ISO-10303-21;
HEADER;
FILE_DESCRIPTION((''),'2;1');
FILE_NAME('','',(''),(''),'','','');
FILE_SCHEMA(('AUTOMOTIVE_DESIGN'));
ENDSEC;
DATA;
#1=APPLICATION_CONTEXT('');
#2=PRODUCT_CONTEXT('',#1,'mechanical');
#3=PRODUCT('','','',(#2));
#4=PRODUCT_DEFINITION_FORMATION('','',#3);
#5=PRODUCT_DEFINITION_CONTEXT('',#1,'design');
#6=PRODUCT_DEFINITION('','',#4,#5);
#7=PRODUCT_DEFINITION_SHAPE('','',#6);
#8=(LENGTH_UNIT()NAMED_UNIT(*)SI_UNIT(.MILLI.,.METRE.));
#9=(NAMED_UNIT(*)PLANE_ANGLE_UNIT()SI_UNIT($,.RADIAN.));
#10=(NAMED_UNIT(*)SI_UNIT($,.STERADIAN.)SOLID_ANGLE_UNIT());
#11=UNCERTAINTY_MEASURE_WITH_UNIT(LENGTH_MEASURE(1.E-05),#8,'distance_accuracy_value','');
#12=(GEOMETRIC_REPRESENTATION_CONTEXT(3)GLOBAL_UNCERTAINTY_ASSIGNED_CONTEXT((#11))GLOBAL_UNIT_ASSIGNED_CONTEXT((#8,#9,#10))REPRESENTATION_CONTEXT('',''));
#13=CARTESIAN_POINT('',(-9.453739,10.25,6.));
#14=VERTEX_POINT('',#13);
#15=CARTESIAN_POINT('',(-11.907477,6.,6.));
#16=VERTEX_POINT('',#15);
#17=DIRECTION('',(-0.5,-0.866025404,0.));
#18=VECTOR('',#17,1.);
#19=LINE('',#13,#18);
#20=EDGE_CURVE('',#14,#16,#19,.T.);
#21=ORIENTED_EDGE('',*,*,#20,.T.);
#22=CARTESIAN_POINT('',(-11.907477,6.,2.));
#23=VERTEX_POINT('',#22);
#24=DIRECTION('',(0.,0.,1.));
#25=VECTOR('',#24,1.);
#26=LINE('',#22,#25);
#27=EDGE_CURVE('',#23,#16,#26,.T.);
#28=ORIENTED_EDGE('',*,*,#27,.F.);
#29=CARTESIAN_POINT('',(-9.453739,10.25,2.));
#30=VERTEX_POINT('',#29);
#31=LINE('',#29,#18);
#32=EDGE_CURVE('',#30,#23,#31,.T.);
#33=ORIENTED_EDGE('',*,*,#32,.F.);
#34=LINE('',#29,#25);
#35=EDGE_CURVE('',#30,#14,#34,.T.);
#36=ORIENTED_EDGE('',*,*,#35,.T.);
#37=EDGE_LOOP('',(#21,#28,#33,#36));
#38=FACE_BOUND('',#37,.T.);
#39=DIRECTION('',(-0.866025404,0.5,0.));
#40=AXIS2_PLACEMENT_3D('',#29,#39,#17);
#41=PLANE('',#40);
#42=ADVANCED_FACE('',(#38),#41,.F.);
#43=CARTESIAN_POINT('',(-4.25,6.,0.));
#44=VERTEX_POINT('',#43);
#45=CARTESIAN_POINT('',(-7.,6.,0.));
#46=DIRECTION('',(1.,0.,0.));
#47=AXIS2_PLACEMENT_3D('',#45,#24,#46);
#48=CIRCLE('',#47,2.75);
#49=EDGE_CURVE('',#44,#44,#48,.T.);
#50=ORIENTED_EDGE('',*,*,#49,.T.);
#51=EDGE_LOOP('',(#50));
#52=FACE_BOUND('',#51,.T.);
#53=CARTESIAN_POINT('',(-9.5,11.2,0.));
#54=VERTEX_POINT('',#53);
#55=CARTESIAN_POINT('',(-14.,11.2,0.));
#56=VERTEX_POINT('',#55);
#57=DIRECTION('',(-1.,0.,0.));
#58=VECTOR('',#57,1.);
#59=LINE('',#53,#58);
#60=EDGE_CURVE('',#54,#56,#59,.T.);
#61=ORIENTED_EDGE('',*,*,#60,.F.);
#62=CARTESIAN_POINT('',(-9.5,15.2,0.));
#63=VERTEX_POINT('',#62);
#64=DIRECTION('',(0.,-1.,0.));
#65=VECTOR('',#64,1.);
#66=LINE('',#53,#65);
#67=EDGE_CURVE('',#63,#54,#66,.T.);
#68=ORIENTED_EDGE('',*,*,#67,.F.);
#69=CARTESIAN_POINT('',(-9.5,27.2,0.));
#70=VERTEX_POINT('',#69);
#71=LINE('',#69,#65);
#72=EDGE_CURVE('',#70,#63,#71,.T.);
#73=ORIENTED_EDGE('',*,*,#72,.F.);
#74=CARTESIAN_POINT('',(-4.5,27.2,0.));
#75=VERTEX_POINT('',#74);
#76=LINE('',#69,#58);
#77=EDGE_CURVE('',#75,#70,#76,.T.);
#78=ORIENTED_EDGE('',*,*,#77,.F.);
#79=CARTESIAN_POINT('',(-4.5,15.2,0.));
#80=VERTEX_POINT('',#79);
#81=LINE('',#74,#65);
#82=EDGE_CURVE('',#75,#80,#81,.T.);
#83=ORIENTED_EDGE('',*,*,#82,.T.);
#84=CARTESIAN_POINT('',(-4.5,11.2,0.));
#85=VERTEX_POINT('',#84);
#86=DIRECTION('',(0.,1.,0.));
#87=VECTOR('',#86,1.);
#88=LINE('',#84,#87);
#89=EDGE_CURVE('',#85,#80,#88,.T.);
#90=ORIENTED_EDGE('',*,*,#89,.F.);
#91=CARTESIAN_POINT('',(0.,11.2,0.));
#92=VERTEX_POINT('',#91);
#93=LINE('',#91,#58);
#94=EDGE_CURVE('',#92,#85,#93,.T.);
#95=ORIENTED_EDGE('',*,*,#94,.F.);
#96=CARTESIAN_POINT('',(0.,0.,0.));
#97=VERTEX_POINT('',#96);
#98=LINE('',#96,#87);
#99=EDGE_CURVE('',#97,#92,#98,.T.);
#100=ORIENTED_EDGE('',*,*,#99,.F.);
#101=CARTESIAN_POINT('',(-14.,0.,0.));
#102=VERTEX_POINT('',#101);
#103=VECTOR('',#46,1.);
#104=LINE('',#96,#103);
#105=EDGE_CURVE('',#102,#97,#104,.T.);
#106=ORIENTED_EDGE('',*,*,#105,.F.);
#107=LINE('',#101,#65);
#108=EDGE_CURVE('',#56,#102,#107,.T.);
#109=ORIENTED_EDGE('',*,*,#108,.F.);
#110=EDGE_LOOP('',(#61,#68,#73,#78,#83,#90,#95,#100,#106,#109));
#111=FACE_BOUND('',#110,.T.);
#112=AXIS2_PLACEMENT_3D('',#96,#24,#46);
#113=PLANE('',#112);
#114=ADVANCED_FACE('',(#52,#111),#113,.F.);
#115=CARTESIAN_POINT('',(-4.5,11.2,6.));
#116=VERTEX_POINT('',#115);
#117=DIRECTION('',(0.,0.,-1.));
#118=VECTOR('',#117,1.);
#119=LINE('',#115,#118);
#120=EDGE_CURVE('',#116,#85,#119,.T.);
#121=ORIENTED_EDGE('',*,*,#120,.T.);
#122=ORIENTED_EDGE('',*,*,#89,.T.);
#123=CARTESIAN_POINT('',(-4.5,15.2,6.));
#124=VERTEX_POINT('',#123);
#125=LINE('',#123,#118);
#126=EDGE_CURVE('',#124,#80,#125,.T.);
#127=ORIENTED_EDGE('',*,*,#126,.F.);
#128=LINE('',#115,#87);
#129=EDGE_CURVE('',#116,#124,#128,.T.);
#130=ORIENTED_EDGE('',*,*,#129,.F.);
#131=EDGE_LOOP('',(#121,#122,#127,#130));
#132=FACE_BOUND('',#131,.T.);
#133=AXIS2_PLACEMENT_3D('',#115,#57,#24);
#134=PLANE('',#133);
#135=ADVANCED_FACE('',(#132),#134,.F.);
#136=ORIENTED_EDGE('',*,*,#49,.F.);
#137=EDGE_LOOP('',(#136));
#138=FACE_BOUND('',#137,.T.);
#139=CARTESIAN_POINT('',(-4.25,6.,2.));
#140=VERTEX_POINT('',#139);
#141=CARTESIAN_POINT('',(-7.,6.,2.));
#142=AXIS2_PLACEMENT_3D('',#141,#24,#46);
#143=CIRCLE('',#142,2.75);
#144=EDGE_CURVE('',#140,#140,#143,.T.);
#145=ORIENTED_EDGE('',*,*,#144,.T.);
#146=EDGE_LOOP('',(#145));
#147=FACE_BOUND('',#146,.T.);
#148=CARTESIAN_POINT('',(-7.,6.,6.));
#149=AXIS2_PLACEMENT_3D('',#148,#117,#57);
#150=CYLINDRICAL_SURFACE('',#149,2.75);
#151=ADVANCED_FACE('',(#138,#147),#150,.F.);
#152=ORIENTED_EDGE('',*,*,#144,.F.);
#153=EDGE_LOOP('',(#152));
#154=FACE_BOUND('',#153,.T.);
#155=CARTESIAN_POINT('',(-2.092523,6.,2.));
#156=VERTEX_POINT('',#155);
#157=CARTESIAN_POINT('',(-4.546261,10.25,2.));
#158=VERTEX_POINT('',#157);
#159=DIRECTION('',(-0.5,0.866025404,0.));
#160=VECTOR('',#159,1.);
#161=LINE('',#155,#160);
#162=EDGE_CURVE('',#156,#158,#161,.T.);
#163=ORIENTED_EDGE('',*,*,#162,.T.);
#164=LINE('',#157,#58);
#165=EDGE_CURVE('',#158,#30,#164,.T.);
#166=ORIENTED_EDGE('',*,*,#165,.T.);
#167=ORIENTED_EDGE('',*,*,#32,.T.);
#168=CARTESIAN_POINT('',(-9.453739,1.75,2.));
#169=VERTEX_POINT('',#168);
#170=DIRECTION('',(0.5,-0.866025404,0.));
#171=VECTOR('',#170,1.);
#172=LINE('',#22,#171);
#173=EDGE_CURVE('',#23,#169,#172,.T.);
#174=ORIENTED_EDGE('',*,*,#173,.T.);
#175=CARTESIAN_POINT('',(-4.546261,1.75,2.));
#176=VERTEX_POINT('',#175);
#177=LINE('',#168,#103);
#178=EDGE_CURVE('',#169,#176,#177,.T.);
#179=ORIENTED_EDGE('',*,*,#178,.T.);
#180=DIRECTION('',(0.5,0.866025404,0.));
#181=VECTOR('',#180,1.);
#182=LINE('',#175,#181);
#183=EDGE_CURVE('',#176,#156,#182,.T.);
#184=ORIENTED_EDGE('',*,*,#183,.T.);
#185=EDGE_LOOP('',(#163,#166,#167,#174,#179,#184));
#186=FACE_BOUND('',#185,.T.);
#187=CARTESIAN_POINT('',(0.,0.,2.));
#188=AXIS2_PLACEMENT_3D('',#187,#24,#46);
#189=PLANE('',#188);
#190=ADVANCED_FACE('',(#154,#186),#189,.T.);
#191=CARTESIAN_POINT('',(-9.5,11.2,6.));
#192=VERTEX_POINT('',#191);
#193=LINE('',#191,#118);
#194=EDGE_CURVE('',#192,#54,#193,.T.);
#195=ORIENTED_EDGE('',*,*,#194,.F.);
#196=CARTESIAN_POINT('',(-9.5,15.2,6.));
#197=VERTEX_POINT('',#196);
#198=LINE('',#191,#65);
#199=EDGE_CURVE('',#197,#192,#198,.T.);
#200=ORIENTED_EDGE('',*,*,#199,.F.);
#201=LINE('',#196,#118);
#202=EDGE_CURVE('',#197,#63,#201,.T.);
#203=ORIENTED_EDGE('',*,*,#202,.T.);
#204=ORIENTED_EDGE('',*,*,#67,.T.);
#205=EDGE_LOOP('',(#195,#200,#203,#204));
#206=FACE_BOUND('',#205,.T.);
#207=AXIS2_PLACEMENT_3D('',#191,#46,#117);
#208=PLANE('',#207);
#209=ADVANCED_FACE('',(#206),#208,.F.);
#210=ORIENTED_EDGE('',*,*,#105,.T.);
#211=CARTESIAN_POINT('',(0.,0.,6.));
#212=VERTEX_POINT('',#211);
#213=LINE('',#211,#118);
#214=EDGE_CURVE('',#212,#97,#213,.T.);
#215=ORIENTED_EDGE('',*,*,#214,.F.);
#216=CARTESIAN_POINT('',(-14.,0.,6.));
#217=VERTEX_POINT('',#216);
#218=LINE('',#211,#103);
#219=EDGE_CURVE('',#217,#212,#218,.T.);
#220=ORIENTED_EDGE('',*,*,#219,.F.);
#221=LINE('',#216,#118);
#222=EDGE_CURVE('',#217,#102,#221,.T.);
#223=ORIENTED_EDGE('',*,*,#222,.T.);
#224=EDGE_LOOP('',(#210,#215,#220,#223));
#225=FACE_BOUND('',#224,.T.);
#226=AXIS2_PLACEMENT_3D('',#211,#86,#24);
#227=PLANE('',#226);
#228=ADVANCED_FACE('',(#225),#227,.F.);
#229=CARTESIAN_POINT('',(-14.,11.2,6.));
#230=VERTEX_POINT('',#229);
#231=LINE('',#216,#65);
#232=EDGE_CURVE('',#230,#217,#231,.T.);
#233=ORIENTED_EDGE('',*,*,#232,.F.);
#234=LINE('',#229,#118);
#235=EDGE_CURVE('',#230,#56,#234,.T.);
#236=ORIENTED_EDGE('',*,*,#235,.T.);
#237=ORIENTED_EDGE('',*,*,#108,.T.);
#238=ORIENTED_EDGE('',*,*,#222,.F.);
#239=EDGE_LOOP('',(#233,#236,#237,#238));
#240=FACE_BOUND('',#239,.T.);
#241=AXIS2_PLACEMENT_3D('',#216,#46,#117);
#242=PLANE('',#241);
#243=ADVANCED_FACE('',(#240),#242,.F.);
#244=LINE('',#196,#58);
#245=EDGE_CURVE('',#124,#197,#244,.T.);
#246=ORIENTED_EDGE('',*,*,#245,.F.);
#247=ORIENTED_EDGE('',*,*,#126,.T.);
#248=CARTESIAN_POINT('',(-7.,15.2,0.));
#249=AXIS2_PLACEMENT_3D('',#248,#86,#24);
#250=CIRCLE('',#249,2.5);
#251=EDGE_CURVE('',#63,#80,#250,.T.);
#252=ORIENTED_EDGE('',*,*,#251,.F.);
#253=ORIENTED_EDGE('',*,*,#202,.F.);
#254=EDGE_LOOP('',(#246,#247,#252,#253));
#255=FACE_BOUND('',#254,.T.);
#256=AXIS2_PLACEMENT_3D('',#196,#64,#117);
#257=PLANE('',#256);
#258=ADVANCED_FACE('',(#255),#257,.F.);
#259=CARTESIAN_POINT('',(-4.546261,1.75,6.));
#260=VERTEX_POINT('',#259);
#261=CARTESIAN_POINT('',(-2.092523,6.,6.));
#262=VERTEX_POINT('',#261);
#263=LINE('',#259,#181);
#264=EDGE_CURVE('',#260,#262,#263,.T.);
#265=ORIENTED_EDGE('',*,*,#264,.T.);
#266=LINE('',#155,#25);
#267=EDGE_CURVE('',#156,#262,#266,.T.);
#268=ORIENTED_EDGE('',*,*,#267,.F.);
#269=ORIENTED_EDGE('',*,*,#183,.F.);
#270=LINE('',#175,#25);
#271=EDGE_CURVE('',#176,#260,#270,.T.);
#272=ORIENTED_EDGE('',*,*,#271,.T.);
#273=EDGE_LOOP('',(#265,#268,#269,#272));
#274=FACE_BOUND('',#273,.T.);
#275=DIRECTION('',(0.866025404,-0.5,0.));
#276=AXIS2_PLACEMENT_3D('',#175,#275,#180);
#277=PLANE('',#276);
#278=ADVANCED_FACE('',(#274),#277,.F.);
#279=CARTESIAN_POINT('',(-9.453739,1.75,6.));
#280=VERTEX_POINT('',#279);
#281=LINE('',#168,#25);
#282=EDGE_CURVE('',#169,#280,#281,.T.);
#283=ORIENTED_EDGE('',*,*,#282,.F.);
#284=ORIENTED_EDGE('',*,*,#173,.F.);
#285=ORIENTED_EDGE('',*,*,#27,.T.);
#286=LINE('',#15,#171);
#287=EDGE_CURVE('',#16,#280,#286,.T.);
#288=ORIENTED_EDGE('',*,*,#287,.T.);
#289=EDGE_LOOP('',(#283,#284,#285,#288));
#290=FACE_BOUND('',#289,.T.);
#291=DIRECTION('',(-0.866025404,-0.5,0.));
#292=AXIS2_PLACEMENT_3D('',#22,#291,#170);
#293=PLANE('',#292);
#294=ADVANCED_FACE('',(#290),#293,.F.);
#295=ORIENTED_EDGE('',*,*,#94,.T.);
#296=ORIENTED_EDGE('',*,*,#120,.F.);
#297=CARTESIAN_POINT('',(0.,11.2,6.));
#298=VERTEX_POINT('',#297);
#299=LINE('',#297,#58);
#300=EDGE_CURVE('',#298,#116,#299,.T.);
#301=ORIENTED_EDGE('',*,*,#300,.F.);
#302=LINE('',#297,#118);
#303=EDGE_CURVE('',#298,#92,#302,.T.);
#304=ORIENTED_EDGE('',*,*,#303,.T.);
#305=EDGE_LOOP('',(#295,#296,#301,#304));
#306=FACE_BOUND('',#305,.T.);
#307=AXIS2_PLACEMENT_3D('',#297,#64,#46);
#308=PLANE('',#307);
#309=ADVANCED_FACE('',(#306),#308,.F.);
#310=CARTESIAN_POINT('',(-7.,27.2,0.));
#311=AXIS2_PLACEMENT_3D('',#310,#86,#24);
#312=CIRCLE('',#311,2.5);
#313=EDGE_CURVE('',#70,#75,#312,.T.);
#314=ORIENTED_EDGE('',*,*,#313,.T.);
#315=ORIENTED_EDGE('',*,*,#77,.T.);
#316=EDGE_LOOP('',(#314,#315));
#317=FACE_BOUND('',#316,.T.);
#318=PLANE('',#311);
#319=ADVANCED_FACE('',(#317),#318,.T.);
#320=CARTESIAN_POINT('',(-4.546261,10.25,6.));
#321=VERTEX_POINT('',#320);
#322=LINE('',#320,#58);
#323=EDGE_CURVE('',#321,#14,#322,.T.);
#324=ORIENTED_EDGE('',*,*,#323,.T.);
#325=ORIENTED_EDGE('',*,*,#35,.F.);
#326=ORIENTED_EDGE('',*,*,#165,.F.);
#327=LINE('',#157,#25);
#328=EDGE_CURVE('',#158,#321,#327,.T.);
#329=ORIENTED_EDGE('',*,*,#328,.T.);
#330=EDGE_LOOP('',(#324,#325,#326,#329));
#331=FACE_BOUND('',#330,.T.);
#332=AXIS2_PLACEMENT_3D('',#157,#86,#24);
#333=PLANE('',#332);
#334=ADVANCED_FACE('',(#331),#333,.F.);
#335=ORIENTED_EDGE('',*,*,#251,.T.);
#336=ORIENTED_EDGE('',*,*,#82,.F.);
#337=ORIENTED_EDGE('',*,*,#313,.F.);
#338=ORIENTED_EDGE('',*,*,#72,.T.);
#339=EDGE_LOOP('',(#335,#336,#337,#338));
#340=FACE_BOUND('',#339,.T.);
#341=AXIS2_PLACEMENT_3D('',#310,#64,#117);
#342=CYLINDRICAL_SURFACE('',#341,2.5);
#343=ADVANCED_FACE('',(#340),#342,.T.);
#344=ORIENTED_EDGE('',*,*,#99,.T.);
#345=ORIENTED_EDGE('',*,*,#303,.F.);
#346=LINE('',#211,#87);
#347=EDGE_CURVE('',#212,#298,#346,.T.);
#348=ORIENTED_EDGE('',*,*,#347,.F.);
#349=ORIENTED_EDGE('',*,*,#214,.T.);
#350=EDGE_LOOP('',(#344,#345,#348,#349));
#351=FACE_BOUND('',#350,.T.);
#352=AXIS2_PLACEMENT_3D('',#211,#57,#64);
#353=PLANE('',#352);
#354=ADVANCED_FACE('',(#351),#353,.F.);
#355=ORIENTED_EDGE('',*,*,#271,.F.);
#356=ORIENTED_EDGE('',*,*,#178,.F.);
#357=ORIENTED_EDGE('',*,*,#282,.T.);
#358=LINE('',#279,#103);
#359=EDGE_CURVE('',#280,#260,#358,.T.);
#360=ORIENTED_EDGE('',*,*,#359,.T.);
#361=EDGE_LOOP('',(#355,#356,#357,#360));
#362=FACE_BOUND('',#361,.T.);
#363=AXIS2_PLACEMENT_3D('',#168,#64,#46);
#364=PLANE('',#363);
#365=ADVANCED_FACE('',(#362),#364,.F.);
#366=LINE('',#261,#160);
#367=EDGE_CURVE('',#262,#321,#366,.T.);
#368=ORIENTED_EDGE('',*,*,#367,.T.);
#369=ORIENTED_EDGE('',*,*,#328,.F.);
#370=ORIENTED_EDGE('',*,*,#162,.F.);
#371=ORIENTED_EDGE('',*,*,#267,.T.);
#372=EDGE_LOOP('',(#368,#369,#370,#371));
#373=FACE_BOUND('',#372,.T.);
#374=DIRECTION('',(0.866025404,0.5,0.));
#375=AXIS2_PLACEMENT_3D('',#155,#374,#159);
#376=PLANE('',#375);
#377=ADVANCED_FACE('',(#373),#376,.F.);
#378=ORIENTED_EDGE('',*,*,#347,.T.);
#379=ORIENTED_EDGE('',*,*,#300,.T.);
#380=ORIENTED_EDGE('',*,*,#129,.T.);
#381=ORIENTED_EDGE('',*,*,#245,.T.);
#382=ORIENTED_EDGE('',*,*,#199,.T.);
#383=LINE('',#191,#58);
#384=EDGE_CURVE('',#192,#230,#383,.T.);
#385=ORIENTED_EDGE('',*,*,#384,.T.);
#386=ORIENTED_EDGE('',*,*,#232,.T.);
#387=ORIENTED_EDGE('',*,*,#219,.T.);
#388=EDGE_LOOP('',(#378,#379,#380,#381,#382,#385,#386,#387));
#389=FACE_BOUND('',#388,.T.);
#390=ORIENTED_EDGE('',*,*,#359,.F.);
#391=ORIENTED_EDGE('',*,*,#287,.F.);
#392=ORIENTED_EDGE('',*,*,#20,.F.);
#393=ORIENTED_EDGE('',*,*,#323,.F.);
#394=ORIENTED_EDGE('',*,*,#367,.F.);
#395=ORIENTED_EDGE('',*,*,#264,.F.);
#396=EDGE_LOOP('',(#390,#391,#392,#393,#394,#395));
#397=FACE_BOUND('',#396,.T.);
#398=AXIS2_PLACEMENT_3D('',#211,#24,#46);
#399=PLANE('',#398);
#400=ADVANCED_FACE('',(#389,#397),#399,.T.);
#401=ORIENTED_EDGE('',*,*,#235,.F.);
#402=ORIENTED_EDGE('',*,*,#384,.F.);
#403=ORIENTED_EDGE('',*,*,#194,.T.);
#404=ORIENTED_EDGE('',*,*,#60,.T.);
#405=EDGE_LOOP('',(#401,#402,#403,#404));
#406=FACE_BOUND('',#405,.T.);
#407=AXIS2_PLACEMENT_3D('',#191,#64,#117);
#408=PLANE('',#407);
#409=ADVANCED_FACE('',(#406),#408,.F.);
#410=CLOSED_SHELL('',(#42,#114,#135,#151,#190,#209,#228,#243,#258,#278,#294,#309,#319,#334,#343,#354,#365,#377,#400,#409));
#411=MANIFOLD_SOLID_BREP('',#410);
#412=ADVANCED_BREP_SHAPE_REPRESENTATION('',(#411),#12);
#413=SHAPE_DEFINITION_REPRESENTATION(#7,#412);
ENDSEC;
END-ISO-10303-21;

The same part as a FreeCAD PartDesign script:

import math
import FreeCAD as App
import Part
import Sketcher
Q = App.Units.Quantity

doc = App.newDocument("Part")
params = doc.addObject("Spreadsheet::Sheet", "Params")
for row, (alias, value) in enumerate([
    ("sketch1_diameter", "5.5 mm"),
    ("sketch1_width", "14 mm"),
    ("sketch1_width2", "5 mm"),
    ("sketch1_height", "4 mm"),
    ("sketch1_height2", "11.2 mm"),
    ("pad1_length", "6 mm"),
    ("sketch2_radius", "2.5 mm"),
    ("pad2_length", "12 mm"),
    ("pocket1_length", "4 mm"),
], start=1):
    params.set(f"A{row}", alias)
    params.set(f"B{row}", "=" + value)
    params.setAlias(f"B{row}", alias)

body = doc.addObject("PartDesign::Body", "Body")

sketch1 = doc.addObject("Sketcher::SketchObject", "Sketch")
body.addObject(sketch1)
sketch1.AttachmentSupport = (doc.XY_Plane, [""])
sketch1.MapMode = "FlatFace"
sketch1.addGeometry([
    Part.LineSegment(App.Vector(-9.5, 11.2, 0), App.Vector(-14, 11.2, 0)),
    Part.LineSegment(App.Vector(-14, 11.2, 0), App.Vector(-14, 0, 0)),
    Part.LineSegment(App.Vector(-14, 0, 0), App.Vector(0, 0, 0)),
    Part.LineSegment(App.Vector(0, 0, 0), App.Vector(0, 11.2, 0)),
    Part.LineSegment(App.Vector(0, 11.2, 0), App.Vector(-4.5, 11.2, 0)),
    Part.LineSegment(App.Vector(-4.5, 11.2, 0), App.Vector(-4.5, 15.2, 0)),
    Part.LineSegment(App.Vector(-4.5, 15.2, 0), App.Vector(-9.5, 15.2, 0)),
    Part.LineSegment(App.Vector(-9.5, 15.2, 0), App.Vector(-9.5, 11.2, 0)),
    Part.Circle(App.Vector(-7, 6, 0), App.Vector(0, 0, 1), 2.75),
], False)
sketch1.addConstraint([
    Sketcher.Constraint("Coincident", 0, 2, 1, 1),
    Sketcher.Constraint("Coincident", 1, 2, 2, 1),
    Sketcher.Constraint("Coincident", 2, 2, 3, 1),
    Sketcher.Constraint("Coincident", 3, 2, 4, 1),
    Sketcher.Constraint("Coincident", 4, 2, 5, 1),
    Sketcher.Constraint("Coincident", 5, 2, 6, 1),
    Sketcher.Constraint("Coincident", 6, 2, 7, 1),
    Sketcher.Constraint("Coincident", 7, 2, 0, 1),
    Sketcher.Constraint("Horizontal", 0),
    Sketcher.Constraint("Vertical", 1),
    Sketcher.Constraint("Horizontal", 2),
    Sketcher.Constraint("Vertical", 3),
    Sketcher.Constraint("Horizontal", 4),
    Sketcher.Constraint("Vertical", 5),
    Sketcher.Constraint("Horizontal", 6),
    Sketcher.Constraint("Vertical", 7),
    Sketcher.Constraint("Coincident", 2, 2, -1, 1),
    Sketcher.Constraint("Horizontal", 0, 2, 3, 2),
    Sketcher.Constraint("Equal", 0, 4),
    Sketcher.Constraint("Diameter", 8, Q("5.5 mm")),
    Sketcher.Constraint("DistanceX", 2, 1, 2, 2, Q("14 mm")),
    Sketcher.Constraint("DistanceX", 6, 2, 6, 1, Q("5 mm")),
    Sketcher.Constraint("DistanceY", 5, 1, 5, 2, Q("4 mm")),
    Sketcher.Constraint("DistanceY", 1, 2, 1, 1, Q("11.2 mm")),
    Sketcher.Constraint("DistanceX", 8, 3, -1, 1, Q("7 mm")),
    Sketcher.Constraint("DistanceY", -1, 1, 8, 3, Q("6 mm")),
])
sketch1.setExpression("Constraints[19]", "Params.sketch1_diameter")
sketch1.setExpression("Constraints[20]", "Params.sketch1_width")
sketch1.setExpression("Constraints[21]", "Params.sketch1_width2")
sketch1.setExpression("Constraints[22]", "Params.sketch1_height")
sketch1.setExpression("Constraints[23]", "Params.sketch1_height2")
pad1 = doc.addObject("PartDesign::Pad", "Pad")
body.addObject(pad1)
pad1.Profile = sketch1
pad1.setExpression("Length", "Params.pad1_length")

sketch2 = doc.addObject("Sketcher::SketchObject", "Sketch001")
body.addObject(sketch2)
sketch2.AttachmentSupport = (doc.XZ_Plane, [""])
sketch2.MapMode = "FlatFace"
sketch2.AttachmentOffset = App.Placement(App.Vector(0, 0, -15.2), App.Rotation())
sketch2.addGeometry([
    Part.LineSegment(App.Vector(-4.5, 0, 0), App.Vector(-9.5, 0, 0)),
    Part.ArcOfCircle(Part.Circle(App.Vector(-7, 0, 0), App.Vector(0, 0, 1), 2.5), math.radians(0), math.radians(180)),
], False)
sketch2.addConstraint([
    Sketcher.Constraint("Coincident", 0, 1, 1, 1),
    Sketcher.Constraint("Coincident", 1, 2, 0, 2),
    Sketcher.Constraint("Horizontal", 0),
    Sketcher.Constraint("PointOnObject", 1, 3, -1),
    Sketcher.Constraint("PointOnObject", 0, 1, -1),
    Sketcher.Constraint("Radius", 1, Q("2.5 mm")),
    Sketcher.Constraint("DistanceX", 1, 3, -1, 1, Q("7 mm")),
])
sketch2.setExpression("Constraints[5]", "Params.sketch2_radius")
pad2 = doc.addObject("PartDesign::Pad", "Pad001")
body.addObject(pad2)
pad2.Profile = sketch2
pad2.setExpression("Length", "Params.pad2_length")
pad2.Reversed = True

sketch3 = doc.addObject("Sketcher::SketchObject", "Sketch002")
body.addObject(sketch3)
sketch3.AttachmentSupport = (doc.XY_Plane, [""])
sketch3.MapMode = "FlatFace"
sketch3.AttachmentOffset = App.Placement(App.Vector(0, 0, 6), App.Rotation())
sketch3.addGeometry([
    Part.LineSegment(App.Vector(-2.092523, 6, 0), App.Vector(-4.546261, 10.25, 0)),
    Part.LineSegment(App.Vector(-4.546261, 10.25, 0), App.Vector(-9.453739, 10.25, 0)),
    Part.LineSegment(App.Vector(-9.453739, 10.25, 0), App.Vector(-11.907477, 6, 0)),
    Part.LineSegment(App.Vector(-11.907477, 6, 0), App.Vector(-9.453739, 1.75, 0)),
    Part.LineSegment(App.Vector(-9.453739, 1.75, 0), App.Vector(-4.546261, 1.75, 0)),
    Part.LineSegment(App.Vector(-4.546261, 1.75, 0), App.Vector(-2.092523, 6, 0)),
], False)
sketch3.addConstraint([
    Sketcher.Constraint("Coincident", 0, 2, 1, 1),
    Sketcher.Constraint("Coincident", 1, 2, 2, 1),
    Sketcher.Constraint("Coincident", 2, 2, 3, 1),
    Sketcher.Constraint("Coincident", 3, 2, 4, 1),
    Sketcher.Constraint("Coincident", 4, 2, 5, 1),
    Sketcher.Constraint("Coincident", 5, 2, 0, 1),
    Sketcher.Constraint("Horizontal", 1),
    Sketcher.Constraint("Horizontal", 4),
    Sketcher.Constraint("Parallel", 0, 3),
    Sketcher.Constraint("Parallel", 2, 5),
    Sketcher.Constraint("Horizontal", 2, 2, 5, 2),
    Sketcher.Constraint("Vertical", 1, 2, 3, 2),
    Sketcher.Constraint("Vertical", 0, 2, 4, 2),
    Sketcher.Constraint("Angle", 0, Q("120 deg")),
    Sketcher.Constraint("DistanceY", -1, 1, 2, 2, Q("6 mm")),
    Sketcher.Constraint("DistanceY", 3, 2, 1, 2, Q("8.5 mm")),
    Sketcher.Constraint("DistanceX", 1, 2, 1, 1, Q("4.907477 mm")),
    Sketcher.Constraint("DistanceX", 0, 2, -1, 1, Q("4.546261 mm")),
])
pocket1 = doc.addObject("PartDesign::Pocket", "Pocket")
body.addObject(pocket1)
pocket1.Profile = sketch3
pocket1.setExpression("Length", "Params.pocket1_length")

doc.recompute()
